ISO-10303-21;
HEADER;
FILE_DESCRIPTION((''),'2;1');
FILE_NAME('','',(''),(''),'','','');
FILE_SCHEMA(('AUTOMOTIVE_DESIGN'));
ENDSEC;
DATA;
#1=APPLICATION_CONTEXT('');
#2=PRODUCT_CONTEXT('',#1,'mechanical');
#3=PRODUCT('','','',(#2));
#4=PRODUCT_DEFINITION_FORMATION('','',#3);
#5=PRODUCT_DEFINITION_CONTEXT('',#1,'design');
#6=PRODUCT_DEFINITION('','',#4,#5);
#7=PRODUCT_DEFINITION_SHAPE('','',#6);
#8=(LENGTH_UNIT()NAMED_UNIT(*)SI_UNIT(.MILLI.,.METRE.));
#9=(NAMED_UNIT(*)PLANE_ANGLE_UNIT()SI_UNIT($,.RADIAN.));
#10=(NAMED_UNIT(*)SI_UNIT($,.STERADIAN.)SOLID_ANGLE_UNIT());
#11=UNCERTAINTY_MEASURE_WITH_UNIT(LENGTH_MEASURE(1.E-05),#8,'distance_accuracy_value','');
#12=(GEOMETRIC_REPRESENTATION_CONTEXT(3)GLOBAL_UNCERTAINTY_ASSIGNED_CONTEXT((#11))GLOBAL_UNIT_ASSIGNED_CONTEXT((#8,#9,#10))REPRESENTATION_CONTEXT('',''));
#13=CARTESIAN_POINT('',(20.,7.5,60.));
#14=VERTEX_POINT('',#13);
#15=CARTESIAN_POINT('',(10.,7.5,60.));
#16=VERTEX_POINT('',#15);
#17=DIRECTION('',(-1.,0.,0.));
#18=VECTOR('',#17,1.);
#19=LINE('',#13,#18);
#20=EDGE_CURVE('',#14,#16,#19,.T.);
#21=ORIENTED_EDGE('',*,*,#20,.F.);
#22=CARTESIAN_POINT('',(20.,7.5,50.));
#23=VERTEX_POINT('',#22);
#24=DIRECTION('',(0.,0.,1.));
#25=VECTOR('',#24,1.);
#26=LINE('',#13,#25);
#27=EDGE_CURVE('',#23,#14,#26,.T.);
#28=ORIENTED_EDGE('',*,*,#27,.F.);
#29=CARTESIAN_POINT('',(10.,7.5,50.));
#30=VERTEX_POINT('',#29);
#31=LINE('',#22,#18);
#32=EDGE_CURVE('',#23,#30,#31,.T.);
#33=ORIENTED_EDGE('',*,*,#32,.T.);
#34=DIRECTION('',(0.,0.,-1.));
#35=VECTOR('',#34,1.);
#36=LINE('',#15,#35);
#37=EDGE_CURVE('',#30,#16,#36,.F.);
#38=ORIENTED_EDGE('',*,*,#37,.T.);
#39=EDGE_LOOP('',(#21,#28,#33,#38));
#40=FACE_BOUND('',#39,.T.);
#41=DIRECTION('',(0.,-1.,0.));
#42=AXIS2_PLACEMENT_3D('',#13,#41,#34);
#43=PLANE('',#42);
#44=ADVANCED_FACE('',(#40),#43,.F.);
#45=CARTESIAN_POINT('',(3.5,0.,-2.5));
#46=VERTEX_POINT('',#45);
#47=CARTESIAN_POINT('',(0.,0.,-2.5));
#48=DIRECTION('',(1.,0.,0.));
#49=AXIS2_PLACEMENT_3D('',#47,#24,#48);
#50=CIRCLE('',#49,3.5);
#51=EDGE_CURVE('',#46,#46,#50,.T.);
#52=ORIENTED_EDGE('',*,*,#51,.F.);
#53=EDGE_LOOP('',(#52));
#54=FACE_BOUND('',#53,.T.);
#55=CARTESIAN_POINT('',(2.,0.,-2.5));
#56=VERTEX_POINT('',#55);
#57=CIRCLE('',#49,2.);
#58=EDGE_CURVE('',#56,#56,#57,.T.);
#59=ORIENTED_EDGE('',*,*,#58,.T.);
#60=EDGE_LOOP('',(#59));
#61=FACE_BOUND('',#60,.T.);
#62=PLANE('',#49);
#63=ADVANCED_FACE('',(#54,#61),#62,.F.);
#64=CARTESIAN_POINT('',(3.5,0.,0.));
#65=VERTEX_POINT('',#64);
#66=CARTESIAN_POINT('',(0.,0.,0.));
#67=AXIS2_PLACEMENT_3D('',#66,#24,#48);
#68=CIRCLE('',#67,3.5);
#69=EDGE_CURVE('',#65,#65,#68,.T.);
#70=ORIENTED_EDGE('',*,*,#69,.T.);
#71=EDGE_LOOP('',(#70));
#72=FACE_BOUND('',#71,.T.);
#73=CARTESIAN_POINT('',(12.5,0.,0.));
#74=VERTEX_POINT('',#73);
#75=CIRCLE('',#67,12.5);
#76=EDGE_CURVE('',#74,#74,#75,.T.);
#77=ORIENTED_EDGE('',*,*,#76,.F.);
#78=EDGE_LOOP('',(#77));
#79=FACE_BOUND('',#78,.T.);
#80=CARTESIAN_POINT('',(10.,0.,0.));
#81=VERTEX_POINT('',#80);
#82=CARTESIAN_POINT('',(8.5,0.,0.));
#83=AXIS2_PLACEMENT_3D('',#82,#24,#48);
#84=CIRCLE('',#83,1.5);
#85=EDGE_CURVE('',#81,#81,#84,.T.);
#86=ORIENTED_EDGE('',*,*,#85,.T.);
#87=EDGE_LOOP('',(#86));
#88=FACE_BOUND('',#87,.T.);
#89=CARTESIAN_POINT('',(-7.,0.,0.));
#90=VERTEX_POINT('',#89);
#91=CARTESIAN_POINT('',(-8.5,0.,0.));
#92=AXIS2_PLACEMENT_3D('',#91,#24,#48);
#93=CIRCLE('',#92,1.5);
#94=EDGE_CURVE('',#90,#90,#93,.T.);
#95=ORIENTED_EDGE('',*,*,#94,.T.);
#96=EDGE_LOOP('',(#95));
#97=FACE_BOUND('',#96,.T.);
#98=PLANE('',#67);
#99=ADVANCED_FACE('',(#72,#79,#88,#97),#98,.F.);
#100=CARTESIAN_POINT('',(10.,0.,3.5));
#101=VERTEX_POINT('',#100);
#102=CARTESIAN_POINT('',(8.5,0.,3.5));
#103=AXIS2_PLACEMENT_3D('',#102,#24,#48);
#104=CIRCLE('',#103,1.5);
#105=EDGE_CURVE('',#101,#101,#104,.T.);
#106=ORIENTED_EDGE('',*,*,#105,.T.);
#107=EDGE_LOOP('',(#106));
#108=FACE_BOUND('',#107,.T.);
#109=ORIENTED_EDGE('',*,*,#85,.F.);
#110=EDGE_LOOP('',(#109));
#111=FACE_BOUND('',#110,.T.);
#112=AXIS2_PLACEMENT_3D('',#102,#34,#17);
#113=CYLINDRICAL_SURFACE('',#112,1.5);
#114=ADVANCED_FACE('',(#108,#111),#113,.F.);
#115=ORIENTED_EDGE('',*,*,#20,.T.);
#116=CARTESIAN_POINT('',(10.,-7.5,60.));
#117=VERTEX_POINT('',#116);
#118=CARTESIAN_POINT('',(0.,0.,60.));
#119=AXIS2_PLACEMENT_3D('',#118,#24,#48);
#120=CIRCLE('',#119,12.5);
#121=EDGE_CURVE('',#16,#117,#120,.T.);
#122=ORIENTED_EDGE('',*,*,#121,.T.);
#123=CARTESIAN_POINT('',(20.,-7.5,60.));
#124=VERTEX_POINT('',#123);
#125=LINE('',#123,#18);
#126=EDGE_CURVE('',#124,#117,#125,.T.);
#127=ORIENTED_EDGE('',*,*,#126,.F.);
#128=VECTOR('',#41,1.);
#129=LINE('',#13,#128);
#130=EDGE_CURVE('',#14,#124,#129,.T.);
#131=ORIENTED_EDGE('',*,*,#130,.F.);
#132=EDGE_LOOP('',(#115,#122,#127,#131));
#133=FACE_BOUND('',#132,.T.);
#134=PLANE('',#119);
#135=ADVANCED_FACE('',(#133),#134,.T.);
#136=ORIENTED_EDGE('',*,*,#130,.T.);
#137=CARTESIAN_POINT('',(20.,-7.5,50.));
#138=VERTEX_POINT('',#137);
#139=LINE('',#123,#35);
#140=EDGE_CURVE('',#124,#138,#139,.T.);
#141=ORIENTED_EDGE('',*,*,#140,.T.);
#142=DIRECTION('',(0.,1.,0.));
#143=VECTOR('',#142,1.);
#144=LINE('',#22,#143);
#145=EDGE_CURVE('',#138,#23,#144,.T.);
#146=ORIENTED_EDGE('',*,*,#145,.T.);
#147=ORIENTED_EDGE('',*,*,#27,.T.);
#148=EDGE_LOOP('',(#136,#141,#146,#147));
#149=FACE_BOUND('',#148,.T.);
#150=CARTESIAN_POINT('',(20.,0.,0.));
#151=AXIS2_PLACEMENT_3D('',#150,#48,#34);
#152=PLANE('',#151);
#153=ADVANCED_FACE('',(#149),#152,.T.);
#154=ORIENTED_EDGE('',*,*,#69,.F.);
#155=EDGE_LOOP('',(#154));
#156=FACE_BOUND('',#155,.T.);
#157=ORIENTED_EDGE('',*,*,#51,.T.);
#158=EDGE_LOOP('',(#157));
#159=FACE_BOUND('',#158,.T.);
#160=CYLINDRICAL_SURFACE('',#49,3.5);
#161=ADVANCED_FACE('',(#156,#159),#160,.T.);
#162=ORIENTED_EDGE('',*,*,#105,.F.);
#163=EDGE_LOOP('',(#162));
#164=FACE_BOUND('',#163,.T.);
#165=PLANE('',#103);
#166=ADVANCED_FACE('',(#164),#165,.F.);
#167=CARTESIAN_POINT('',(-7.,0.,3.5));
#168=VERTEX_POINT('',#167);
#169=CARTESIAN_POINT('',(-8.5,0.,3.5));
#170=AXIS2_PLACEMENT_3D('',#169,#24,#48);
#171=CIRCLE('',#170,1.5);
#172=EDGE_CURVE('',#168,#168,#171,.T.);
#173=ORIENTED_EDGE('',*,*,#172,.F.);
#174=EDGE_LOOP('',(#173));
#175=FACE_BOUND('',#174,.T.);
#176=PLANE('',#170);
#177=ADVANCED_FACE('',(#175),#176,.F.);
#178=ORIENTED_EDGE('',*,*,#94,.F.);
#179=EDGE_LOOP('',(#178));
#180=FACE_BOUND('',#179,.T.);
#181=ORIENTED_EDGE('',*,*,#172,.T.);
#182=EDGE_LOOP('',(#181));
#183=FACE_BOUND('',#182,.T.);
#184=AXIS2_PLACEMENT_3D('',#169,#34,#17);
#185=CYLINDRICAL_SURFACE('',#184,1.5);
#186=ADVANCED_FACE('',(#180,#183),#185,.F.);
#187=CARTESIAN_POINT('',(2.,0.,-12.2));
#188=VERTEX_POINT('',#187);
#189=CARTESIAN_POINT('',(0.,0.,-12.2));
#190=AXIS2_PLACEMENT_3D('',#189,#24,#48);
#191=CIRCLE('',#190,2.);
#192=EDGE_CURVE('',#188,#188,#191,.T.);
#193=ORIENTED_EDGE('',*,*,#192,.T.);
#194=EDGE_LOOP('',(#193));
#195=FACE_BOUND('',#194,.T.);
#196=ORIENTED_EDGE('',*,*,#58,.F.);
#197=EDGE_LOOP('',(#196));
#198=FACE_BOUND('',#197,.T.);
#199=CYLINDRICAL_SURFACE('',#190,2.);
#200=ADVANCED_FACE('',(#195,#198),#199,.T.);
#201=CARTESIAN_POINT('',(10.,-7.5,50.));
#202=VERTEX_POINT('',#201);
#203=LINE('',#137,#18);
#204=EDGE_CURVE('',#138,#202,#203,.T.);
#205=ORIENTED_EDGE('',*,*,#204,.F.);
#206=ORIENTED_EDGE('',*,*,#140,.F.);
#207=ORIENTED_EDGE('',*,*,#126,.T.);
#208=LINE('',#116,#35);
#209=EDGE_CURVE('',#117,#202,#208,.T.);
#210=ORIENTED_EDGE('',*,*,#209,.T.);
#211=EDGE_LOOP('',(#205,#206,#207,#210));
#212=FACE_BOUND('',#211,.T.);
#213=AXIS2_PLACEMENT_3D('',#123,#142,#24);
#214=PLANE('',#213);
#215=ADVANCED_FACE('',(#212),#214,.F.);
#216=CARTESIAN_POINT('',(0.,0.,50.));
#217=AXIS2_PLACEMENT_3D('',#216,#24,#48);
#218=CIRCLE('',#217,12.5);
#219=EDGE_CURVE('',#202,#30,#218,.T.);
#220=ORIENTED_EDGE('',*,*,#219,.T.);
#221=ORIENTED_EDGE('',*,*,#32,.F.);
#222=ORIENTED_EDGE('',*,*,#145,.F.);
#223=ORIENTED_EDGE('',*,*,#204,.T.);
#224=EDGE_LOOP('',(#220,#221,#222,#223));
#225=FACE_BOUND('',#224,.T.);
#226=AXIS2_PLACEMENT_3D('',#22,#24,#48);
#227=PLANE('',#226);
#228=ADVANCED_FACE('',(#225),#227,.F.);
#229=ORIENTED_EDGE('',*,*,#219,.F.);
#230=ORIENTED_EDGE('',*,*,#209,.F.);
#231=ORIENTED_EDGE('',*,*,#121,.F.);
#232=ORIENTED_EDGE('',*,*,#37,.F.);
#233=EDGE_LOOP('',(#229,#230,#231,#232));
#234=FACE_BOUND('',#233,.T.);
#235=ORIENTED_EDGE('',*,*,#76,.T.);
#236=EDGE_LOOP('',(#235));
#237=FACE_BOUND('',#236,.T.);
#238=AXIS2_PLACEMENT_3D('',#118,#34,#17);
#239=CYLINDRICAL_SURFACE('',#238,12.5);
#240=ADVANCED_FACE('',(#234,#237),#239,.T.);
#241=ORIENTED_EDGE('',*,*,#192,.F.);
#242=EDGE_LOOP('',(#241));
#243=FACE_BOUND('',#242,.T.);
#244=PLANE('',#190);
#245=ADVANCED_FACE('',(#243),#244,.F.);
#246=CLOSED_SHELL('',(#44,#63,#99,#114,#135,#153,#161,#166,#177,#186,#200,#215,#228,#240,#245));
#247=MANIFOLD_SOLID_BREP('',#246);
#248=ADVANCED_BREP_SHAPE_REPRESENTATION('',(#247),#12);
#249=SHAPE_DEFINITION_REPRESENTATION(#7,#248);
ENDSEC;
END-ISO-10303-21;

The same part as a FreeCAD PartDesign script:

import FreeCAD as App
import Part
import Sketcher


def add_polygon(sketch, points):
    """Adds a closed chain of lines whose ends are joined by coincident constraints."""
    first, n = sketch.GeometryCount, len(points)
    for a, b in zip(points, points[1:] + points[:1]):
        sketch.addGeometry(Part.LineSegment(App.Vector(*a, 0), App.Vector(*b, 0)), False)
    for i in range(n):
        sketch.addConstraint(Sketcher.Constraint("Coincident", first + i, 2, first + (i + 1) % n, 1))

doc = App.newDocument("Part")
body = doc.addObject("PartDesign::Body", "Body")

sketch1 = body.newObject("Sketcher::SketchObject", "Sketch")
sketch1.AttachmentSupport = (doc.getObject("XY_Plane"), [""])
sketch1.MapMode = "FlatFace"
sketch1.addGeometry(Part.Circle(App.Vector(0, 0, 0), App.Vector(0, 0, 1), 12), False)
sketch1.addConstraint(Sketcher.Constraint("Coincident", 0, 3, -1, 1))
sketch1.addConstraint(Sketcher.Constraint("Diameter", 0, 25.0))
pad1 = body.newObject("PartDesign::Pad", "Pad")
pad1.Profile = sketch1
pad1.Length = 60

sketch2 = body.newObject("Sketcher::SketchObject", "Sketch001")
sketch2.AttachmentSupport = (doc.getObject("XY_Plane"), [""])
sketch2.MapMode = "FlatFace"
sketch2.addGeometry(Part.Circle(App.Vector(8.5, 0, 0), App.Vector(0, 0, 1), 1.5), False)
sketch2.addGeometry(Part.Circle(App.Vector(-8.5, 0, 0), App.Vector(0, 0, 1), 1.5), False)
sketch2.addConstraint(Sketcher.Constraint("Equal", 0, 1))
sketch2.addConstraint(Sketcher.Constraint("Symmetric", 0, 3, 1, 3, -1, 1))
sketch2.addConstraint(Sketcher.Constraint("PointOnObject", 0, 3, -1))
sketch2.addConstraint(Sketcher.Constraint("Diameter", 0, 3.0))
sketch2.addConstraint(Sketcher.Constraint("DistanceX", 1, 3, 0, 3, 17.0))
pocket1 = body.newObject("PartDesign::Pocket", "Pocket")
pocket1.Profile = sketch2
pocket1.Length = 3.5
pocket1.Reversed = True

sketch3 = body.newObject("Sketcher::SketchObject", "Sketch002")
sketch3.AttachmentSupport = (doc.getObject("XY_Plane"), [""])
sketch3.MapMode = "FlatFace"
sketch3.addGeometry(Part.Circle(App.Vector(0, 0, 0), App.Vector(0, 0, 1), 3.5), False)
sketch3.addGeometry(Part.Circle(App.Vector(0, 0, 0), App.Vector(0, 0, 1), 2), False)
sketch3.addConstraint(Sketcher.Constraint("Coincident", 0, 3, -1, 1))
sketch3.addConstraint(Sketcher.Constraint("Coincident", 1, 3, -1, 1))
sketch3.addConstraint(Sketcher.Constraint("Diameter", 0, 7.0))
sketch3.addConstraint(Sketcher.Constraint("Diameter", 1, 4.0))
pad2 = body.newObject("PartDesign::Pad", "Pad001")
pad2.Profile = sketch3
pad2.Length = 2.5
pad2.Reversed = True

sketch4 = body.newObject("Sketcher::SketchObject", "Sketch003")
sketch4.AttachmentSupport = (doc.getObject("XY_Plane"), [""])
sketch4.MapMode = "FlatFace"
sketch4.addGeometry(Part.Circle(App.Vector(0, 0, 0), App.Vector(0, 0, 1), 2), False)
sketch4.addConstraint(Sketcher.Constraint("Coincident", 0, 3, -1, 1))
sketch4.addConstraint(Sketcher.Constraint("Diameter", 0, 4.0))
pad3 = body.newObject("PartDesign::Pad", "Pad002")
pad3.Profile = sketch4
pad3.Length = 12.2
pad3.Reversed = True

sketch5 = body.newObject("Sketcher::SketchObject", "Sketch004")
sketch5.AttachmentSupport = (doc.getObject("YZ_Plane"), [""])
sketch5.MapMode = "FlatFace"
add_polygon(sketch5, [(8, 60), (-8, 60), (-8, 50), (8, 50)])
sketch5.addConstraint(Sketcher.Constraint("Horizontal", 0))
sketch5.addConstraint(Sketcher.Constraint("Vertical", 1))
sketch5.addConstraint(Sketcher.Constraint("Horizontal", 2))
sketch5.addConstraint(Sketcher.Constraint("Vertical", 3))
sketch5.addConstraint(Sketcher.Constraint("DistanceX", 0, 2, 0, 1, 15.0))
sketch5.addConstraint(Sketcher.Constraint("DistanceY", 1, 2, 1, 1, 10.0))
sketch5.addConstraint(Sketcher.Constraint("DistanceY", -1, 1, 0, 2, 60.0))
sketch5.addConstraint(Sketcher.Constraint("DistanceX", 0, 2, -1, 1, 7.5))
pad4 = body.newObject("PartDesign::Pad", "Pad003")
pad4.Profile = sketch5
pad4.Length = 20

doc.recompute()
